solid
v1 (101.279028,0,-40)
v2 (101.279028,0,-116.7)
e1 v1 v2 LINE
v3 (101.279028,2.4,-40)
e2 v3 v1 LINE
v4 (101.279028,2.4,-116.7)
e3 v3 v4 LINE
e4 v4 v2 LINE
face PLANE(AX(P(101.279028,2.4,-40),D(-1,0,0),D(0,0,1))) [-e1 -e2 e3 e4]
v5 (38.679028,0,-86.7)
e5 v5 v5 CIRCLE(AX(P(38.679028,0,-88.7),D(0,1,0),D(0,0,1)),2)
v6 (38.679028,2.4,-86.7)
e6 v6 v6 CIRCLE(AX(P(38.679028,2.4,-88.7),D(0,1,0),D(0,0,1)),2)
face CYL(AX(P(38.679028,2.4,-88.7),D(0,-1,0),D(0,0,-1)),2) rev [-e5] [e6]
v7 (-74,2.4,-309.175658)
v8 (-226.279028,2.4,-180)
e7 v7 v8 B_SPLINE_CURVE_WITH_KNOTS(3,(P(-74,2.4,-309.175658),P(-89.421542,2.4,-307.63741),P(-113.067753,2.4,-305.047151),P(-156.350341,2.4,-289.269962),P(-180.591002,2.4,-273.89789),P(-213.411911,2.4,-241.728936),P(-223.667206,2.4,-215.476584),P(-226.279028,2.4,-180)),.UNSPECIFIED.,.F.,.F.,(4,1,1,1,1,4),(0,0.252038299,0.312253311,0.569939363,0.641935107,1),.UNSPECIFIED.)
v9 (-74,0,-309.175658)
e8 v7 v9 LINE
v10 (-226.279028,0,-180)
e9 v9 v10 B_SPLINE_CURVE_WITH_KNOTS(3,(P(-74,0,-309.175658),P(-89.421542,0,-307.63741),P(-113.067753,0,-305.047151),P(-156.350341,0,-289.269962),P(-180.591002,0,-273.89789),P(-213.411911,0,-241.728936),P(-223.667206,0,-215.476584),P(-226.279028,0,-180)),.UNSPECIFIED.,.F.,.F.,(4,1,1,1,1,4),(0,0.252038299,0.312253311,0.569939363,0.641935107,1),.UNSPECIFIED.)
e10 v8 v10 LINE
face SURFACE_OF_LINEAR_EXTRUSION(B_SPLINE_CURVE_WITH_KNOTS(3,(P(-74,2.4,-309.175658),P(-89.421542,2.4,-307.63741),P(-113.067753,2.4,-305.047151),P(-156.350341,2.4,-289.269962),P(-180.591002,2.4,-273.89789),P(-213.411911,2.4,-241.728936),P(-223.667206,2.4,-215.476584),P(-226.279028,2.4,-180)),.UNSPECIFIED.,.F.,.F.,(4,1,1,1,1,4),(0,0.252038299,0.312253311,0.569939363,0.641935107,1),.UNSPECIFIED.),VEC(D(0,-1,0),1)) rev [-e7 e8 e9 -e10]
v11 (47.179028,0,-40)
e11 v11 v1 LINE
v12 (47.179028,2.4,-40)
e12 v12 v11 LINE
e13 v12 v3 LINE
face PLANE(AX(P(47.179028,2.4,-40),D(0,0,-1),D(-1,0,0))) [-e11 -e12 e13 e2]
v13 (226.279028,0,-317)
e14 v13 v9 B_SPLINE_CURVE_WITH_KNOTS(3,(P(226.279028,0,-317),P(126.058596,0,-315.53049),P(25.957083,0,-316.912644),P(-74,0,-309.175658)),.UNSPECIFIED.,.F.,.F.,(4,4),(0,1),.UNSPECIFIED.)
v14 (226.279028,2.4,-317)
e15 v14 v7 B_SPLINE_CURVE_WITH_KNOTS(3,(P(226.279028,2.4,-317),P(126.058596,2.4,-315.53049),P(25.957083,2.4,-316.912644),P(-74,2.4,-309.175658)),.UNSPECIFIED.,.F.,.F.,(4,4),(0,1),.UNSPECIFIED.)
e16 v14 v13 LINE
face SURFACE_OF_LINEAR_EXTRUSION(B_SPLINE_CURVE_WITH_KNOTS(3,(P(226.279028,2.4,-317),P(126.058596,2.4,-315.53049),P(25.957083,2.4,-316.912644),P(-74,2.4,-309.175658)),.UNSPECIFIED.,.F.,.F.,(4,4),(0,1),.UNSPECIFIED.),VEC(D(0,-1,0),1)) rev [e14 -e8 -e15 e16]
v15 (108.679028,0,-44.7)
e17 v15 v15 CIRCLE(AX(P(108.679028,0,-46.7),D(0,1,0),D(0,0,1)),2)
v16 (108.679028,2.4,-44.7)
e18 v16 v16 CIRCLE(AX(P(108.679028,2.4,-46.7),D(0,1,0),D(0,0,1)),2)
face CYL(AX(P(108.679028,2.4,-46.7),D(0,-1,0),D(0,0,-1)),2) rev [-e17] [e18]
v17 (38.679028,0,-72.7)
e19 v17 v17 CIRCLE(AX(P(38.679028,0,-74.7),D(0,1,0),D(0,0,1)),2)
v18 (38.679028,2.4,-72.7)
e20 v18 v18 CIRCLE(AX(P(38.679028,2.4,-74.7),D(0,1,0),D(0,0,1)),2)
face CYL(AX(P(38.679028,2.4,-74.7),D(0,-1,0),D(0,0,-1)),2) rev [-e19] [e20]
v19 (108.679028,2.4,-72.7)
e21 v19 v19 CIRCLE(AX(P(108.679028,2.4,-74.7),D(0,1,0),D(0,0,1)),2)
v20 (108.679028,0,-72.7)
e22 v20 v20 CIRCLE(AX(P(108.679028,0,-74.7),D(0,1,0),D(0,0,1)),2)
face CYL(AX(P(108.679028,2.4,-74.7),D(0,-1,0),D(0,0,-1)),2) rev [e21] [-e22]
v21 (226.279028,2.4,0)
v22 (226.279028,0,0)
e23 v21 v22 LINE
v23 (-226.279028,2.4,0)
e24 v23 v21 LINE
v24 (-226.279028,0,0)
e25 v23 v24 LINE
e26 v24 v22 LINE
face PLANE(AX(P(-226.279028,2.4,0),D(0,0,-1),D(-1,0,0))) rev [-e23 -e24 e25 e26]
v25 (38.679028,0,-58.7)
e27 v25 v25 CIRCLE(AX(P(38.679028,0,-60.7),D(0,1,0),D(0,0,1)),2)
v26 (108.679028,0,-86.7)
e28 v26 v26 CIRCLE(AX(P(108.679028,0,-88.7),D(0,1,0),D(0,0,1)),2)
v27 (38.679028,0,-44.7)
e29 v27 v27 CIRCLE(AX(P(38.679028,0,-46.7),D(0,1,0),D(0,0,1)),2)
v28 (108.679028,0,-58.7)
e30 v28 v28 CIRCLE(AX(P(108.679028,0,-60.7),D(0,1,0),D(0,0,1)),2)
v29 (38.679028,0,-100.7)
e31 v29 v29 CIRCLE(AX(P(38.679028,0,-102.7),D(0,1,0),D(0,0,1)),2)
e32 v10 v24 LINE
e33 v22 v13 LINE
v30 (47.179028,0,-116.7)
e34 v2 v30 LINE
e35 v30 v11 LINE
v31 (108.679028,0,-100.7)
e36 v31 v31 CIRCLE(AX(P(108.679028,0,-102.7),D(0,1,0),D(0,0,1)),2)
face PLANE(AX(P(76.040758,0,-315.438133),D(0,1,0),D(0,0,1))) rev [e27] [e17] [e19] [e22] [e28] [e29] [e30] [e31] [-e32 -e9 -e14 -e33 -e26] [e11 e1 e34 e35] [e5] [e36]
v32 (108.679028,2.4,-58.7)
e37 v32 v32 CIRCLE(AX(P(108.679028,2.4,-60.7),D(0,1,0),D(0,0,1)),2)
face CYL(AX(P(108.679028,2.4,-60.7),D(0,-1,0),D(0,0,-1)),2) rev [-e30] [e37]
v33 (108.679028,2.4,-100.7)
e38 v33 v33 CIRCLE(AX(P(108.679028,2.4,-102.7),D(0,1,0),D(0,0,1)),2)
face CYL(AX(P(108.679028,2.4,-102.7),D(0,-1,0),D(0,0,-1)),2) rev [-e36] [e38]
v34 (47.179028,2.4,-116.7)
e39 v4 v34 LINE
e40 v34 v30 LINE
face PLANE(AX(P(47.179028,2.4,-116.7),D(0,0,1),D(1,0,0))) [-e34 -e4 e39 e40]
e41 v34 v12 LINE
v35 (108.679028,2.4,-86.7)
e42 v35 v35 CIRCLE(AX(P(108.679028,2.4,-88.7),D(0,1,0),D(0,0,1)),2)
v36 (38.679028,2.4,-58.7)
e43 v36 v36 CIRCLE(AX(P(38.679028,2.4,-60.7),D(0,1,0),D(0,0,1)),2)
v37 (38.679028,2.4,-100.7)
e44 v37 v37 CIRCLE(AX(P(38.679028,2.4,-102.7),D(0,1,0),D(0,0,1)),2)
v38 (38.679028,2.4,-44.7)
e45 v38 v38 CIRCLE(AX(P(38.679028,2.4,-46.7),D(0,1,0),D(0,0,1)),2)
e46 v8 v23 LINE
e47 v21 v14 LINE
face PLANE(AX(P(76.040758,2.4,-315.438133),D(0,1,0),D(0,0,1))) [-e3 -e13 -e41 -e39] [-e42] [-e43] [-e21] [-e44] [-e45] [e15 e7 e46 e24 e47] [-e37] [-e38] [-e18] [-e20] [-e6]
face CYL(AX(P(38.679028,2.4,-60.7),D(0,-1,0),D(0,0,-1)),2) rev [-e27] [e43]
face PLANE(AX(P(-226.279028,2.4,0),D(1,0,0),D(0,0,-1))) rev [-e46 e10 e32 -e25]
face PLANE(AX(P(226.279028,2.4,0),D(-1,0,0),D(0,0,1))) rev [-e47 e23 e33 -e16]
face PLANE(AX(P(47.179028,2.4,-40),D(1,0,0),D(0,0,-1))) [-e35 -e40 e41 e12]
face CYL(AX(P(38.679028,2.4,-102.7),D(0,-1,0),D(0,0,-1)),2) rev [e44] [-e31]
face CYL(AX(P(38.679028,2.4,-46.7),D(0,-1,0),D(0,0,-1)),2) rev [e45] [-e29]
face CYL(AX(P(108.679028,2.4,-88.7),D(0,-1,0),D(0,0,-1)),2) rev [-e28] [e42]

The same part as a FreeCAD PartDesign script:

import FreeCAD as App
import Part
import Sketcher


def add_polygon(sketch, points):
    """Adds a closed chain of lines whose ends are joined by coincident constraints."""
    first, n = sketch.GeometryCount, len(points)
    for a, b in zip(points, points[1:] + points[:1]):
        sketch.addGeometry(Part.LineSegment(App.Vector(*a, 0), App.Vector(*b, 0)), False)
    for i in range(n):
        sketch.addConstraint(Sketcher.Constraint("Coincident", first + i, 2, first + (i + 1) % n, 1))

doc = App.newDocument("Part")
body = doc.addObject("PartDesign::Body", "Body")

sketch1 = body.newObject("Sketcher::SketchObject", "Sketch")
sketch1.AttachmentSupport = (doc.getObject("XZ_Plane"), [""])
sketch1.MapMode = "FlatFace"
sketch1.addGeometry(Part.LineSegment(App.Vector(-226.279028, 0, 0), App.Vector(226.279028, 0, 0)), False)
sketch1.addGeometry(Part.LineSegment(App.Vector(226.279028, 0, 0), App.Vector(226.279028, -317, 0)), False)
sketch1.addGeometry(Part.BSplineCurve([App.Vector(226.279028, -317, 0), App.Vector(126.058596, -315.53049, 0), App.Vector(25.957083, -316.912644, 0), App.Vector(-74, -309.175658, 0)], [4, 4], [0, 1], False, 3, [1, 1, 1, 1], False), False)
sketch1.addGeometry(Part.BSplineCurve([App.Vector(-226.279028, -180, 0), App.Vector(-223.667206, -215.476584, 0), App.Vector(-213.411911, -241.728936, 0), App.Vector(-180.591002, -273.89789, 0), App.Vector(-156.350341, -289.269962, 0), App.Vector(-113.067753, -305.047151, 0), App.Vector(-89.421542, -307.63741, 0), App.Vector(-74, -309.175658, 0)], [4, 1, 1, 1, 1, 4], [0, 0.358064893, 0.430060637, 0.687746689, 0.747961701, 1], False, 3, [1, 1, 1, 1, 1, 1, 1, 1], False), False)
sketch1.addGeometry(Part.LineSegment(App.Vector(-226.279028, -180, 0), App.Vector(-226.279028, 0, 0)), False)
sketch1.addGeometry(Part.Circle(App.Vector(38.679028, -46.7, 0), App.Vector(0, 0, 1), 2), False)
sketch1.addGeometry(Part.Circle(App.Vector(38.679028, -60.7, 0), App.Vector(0, 0, 1), 2), False)
sketch1.addGeometry(Part.Circle(App.Vector(38.679028, -74.7, 0), App.Vector(0, 0, 1), 2), False)
sketch1.addGeometry(Part.Circle(App.Vector(108.679028, -46.7, 0), App.Vector(0, 0, 1), 2), False)
sketch1.addGeometry(Part.Circle(App.Vector(108.679028, -60.7, 0), App.Vector(0, 0, 1), 2), False)
sketch1.addGeometry(Part.Circle(App.Vector(108.679028, -74.7, 0), App.Vector(0, 0, 1), 2), False)
sketch1.addGeometry(Part.Circle(App.Vector(38.679028, -88.7, 0), App.Vector(0, 0, 1), 2), False)
sketch1.addGeometry(Part.Circle(App.Vector(38.679028, -102.7, 0), App.Vector(0, 0, 1), 2), False)
add_polygon(sketch1, [(101.279028, -40), (47.179028, -40), (47.179028, -116.7), (101.279028, -116.7)])
sketch1.addGeometry(Part.Circle(App.Vector(108.679028, -88.7, 0), App.Vector(0, 0, 1), 2), False)
sketch1.addGeometry(Part.Circle(App.Vector(108.679028, -102.7, 0), App.Vector(0, 0, 1), 2), False)
sketch1.addConstraint([
    Sketcher.Constraint("Block", 2),
    Sketcher.Constraint("Block", 3),
    Sketcher.Constraint("Coincident", 0, 2, 1, 1),
    Sketcher.Constraint("Coincident", 1, 2, 2, 1),
    Sketcher.Constraint("Coincident", 3, 1, 4, 1),
    Sketcher.Constraint("Coincident", 4, 2, 0, 1),
    Sketcher.Constraint("Horizontal", 0),
    Sketcher.Constraint("Vertical", 1),
    Sketcher.Constraint("Vertical", 4),
    Sketcher.Constraint("Horizontal", 13),
    Sketcher.Constraint("Vertical", 14),
    Sketcher.Constraint("Horizontal", 15),
    Sketcher.Constraint("Vertical", 16),
    Sketcher.Constraint("Equal", 5, 6),
    Sketcher.Constraint("Equal", 6, 7),
    Sketcher.Constraint("Equal", 7, 8),
    Sketcher.Constraint("Equal", 8, 9),
    Sketcher.Constraint("Equal", 9, 10),
    Sketcher.Constraint("Equal", 10, 11),
    Sketcher.Constraint("Equal", 11, 12),
    Sketcher.Constraint("Equal", 12, 17),
    Sketcher.Constraint("Equal", 17, 18),
    Sketcher.Constraint("PointOnObject", 0, 2, -1),
    Sketcher.Constraint("Horizontal", 5, 3, 8, 3),
    Sketcher.Constraint("Horizontal", 6, 3, 9, 3),
    Sketcher.Constraint("Horizontal", 7, 3, 10, 3),
    Sketcher.Constraint("Horizontal", 11, 3, 17, 3),
    Sketcher.Constraint("Horizontal", 12, 3, 18, 3),
    Sketcher.Constraint("Vertical", 5, 3, 6, 3),
    Sketcher.Constraint("Vertical", 6, 3, 7, 3),
    Sketcher.Constraint("Vertical", 8, 3, 9, 3),
    Sketcher.Constraint("Vertical", 9, 3, 10, 3),
    Sketcher.Constraint("Vertical", 7, 3, 11, 3),
    Sketcher.Constraint("Vertical", 11, 3, 12, 3),
    Sketcher.Constraint("Vertical", 10, 3, 17, 3),
    Sketcher.Constraint("Vertical", 17, 3, 18, 3),
    Sketcher.Constraint("Diameter", 5, 4.0),
    Sketcher.Constraint("DistanceX", 13, 2, 13, 1, 54.1),
    Sketcher.Constraint("DistanceY", 14, 2, 14, 1, 76.7),
    Sketcher.Constraint("DistanceY", 13, 2, -1, 1, 40.0),
    Sketcher.Constraint("DistanceY", 6, 3, 5, 3, 14.0),
    Sketcher.Constraint("DistanceY", 7, 3, 6, 3, 14.0),
    Sketcher.Constraint("DistanceX", 5, 3, 8, 3, 70.0),
    Sketcher.Constraint("DistanceY", 11, 3, 7, 3, 14.0),
    Sketcher.Constraint("DistanceY", 12, 3, 11, 3, 14.0),
    Sketcher.Constraint("DistanceY", 14, 2, 12, 3, 14.0),
    Sketcher.Constraint("DistanceX", 8, 3, 0, 2, 117.6),
    Sketcher.Constraint("DistanceX", 5, 3, 13, 2, 8.5),
])
pad1 = body.newObject("PartDesign::Pad", "Pad")
pad1.Profile = sketch1
pad1.Length = 2.4
pad1.Reversed = True

doc.recompute()
